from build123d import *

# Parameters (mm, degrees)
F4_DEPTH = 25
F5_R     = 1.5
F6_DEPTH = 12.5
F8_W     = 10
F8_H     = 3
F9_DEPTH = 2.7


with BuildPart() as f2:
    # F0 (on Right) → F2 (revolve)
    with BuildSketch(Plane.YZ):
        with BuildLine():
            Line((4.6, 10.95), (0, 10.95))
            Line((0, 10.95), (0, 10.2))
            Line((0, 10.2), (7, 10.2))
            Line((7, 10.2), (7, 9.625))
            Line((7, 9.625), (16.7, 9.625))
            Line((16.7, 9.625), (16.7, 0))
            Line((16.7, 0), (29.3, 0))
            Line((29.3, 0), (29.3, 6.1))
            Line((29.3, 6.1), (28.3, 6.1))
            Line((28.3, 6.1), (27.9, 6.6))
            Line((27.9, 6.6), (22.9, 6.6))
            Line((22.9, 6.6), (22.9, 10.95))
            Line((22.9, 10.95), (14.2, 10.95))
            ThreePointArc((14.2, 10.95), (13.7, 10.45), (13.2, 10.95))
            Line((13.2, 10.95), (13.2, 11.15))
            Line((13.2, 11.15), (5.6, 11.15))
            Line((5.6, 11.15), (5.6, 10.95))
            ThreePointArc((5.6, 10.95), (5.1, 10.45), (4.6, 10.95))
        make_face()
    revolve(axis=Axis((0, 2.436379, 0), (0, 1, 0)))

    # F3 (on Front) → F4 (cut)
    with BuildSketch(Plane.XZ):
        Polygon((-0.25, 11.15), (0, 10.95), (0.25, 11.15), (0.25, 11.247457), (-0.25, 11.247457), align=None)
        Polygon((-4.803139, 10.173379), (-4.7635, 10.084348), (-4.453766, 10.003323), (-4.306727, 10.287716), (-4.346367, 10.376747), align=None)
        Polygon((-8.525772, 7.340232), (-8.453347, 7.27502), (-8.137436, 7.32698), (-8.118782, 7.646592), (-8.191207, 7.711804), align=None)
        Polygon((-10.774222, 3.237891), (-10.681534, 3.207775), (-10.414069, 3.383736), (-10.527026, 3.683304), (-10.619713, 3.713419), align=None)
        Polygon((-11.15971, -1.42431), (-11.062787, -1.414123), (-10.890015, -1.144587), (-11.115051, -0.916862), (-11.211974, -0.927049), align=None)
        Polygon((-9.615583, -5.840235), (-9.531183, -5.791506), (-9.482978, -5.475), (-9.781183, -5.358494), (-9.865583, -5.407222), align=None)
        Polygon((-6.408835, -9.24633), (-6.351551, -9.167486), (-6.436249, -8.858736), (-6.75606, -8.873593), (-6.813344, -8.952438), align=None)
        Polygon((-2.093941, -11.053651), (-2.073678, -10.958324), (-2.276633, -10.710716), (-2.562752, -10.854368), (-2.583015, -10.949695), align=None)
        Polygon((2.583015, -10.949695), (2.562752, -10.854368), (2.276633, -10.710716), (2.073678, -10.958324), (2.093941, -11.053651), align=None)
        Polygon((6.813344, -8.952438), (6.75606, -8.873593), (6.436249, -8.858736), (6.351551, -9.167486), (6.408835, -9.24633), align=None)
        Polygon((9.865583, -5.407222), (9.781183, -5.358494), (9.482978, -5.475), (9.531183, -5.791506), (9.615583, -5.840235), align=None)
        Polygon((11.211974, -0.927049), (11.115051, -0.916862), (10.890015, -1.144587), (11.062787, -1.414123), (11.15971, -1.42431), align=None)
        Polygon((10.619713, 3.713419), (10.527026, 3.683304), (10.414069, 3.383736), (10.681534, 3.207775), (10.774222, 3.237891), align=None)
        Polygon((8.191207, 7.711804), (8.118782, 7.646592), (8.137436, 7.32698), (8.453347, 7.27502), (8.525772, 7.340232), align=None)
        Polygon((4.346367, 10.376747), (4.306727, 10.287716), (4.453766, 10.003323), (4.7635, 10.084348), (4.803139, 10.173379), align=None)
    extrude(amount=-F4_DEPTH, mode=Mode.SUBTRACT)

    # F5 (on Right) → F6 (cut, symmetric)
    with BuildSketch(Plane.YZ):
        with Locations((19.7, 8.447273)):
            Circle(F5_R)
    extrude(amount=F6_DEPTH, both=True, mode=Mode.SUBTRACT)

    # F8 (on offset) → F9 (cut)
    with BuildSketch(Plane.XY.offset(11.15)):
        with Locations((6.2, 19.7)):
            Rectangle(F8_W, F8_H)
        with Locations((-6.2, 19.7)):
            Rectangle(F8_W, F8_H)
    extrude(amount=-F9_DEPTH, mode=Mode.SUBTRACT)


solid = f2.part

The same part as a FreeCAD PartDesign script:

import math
import FreeCAD as App
import Part
import Sketcher

V = App.Vector
Q = App.Units.Quantity


def add_polygon(sketch, points):
    """Adds a closed chain of lines whose ends are joined by coincident constraints."""
    first, n = sketch.GeometryCount, len(points)
    for a, b in zip(points, points[1:] + points[:1]):
        sketch.addGeometry(Part.LineSegment(App.Vector(*a, 0), App.Vector(*b, 0)), False)
    for i in range(n):
        sketch.addConstraint(Sketcher.Constraint("Coincident", first + i, 2, first + (i + 1) % n, 1))

doc = App.newDocument("Part")
body = doc.addObject("PartDesign::Body", "Body")

sketch1 = body.newObject("Sketcher::SketchObject", "Sketch")
sketch1.AttachmentSupport = (doc.getObject("YZ_Plane"), [""])
sketch1.MapMode = "FlatFace"
sketch1.addGeometry([
    Part.LineSegment(V(4.6, 10.95, 0), V(0, 10.95, 0)),
    Part.LineSegment(V(0, 10.95, 0), V(0, 10.2, 0)),
    Part.LineSegment(V(0, 10.2, 0), V(7, 10.2, 0)),
    Part.LineSegment(V(7, 10.2, 0), V(7, 9.62, 0)),
    Part.LineSegment(V(7, 9.62, 0), V(16.7, 9.62, 0)),
    Part.LineSegment(V(16.7, 9.62, 0), V(16.7, 0, 0)),
    Part.LineSegment(V(16.7, 0, 0), V(29.3, 0, 0)),
    Part.LineSegment(V(29.3, 0, 0), V(29.3, 6.1, 0)),
    Part.LineSegment(V(29.3, 6.1, 0), V(28.3, 6.1, 0)),
    Part.LineSegment(V(28.3, 6.1, 0), V(27.9, 6.6, 0)),
    Part.LineSegment(V(27.9, 6.6, 0), V(22.9, 6.6, 0)),
    Part.LineSegment(V(22.9, 6.6, 0), V(22.9, 10.95, 0)),
    Part.LineSegment(V(22.9, 10.95, 0), V(14.2, 10.95, 0)),
    Part.ArcOfCircle(Part.Circle(V(13.7, 10.95, 0), V(0, 0, 1), 0.5), math.radians(180), math.radians(360)),
    Part.LineSegment(V(13.2, 10.95, 0), V(13.2, 11.15, 0)),
    Part.LineSegment(V(13.2, 11.15, 0), V(5.6, 11.15, 0)),
    Part.LineSegment(V(5.6, 11.15, 0), V(5.6, 10.95, 0)),
    Part.ArcOfCircle(Part.Circle(V(5.1, 10.95, 0), V(0, 0, 1), 0.5), math.radians(180), math.radians(360)),
], False)
sketch1.addConstraint([
    Sketcher.Constraint("Coincident", 0, 2, 1, 1),
    Sketcher.Constraint("Coincident", 1, 2, 2, 1),
    Sketcher.Constraint("Coincident", 2, 2, 3, 1),
    Sketcher.Constraint("Coincident", 3, 2, 4, 1),
    Sketcher.Constraint("Coincident", 4, 2, 5, 1),
    Sketcher.Constraint("Coincident", 5, 2, 6, 1),
    Sketcher.Constraint("Coincident", 6, 2, 7, 1),
    Sketcher.Constraint("Coincident", 7, 2, 8, 1),
    Sketcher.Constraint("Coincident", 8, 2, 9, 1),
    Sketcher.Constraint("Coincident", 9, 2, 10, 1),
    Sketcher.Constraint("Coincident", 10, 2, 11, 1),
    Sketcher.Constraint("Coincident", 11, 2, 12, 1),
    Sketcher.Constraint("Coincident", 12, 2, 13, 2),
    Sketcher.Constraint("Tangent", 13, 1, 14, 1),
    Sketcher.Constraint("Coincident", 14, 2, 15, 1),
    Sketcher.Constraint("Coincident", 15, 2, 16, 1),
    Sketcher.Constraint("Tangent", 16, 2, 17, 2),
    Sketcher.Constraint("Coincident", 17, 1, 0, 1),
    Sketcher.Constraint("Horizontal", 0),
    Sketcher.Constraint("Vertical", 1),
    Sketcher.Constraint("Horizontal", 2),
    Sketcher.Constraint("Vertical", 3),
    Sketcher.Constraint("Horizontal", 4),
    Sketcher.Constraint("Vertical", 5),
    Sketcher.Constraint("Horizontal", 6),
    Sketcher.Constraint("Vertical", 7),
    Sketcher.Constraint("Horizontal", 8),
    Sketcher.Constraint("Horizontal", 10),
    Sketcher.Constraint("Vertical", 11),
    Sketcher.Constraint("Horizontal", 12),
    Sketcher.Constraint("Vertical", 14),
    Sketcher.Constraint("Horizontal", 15),
    Sketcher.Constraint("Vertical", 16),
    Sketcher.Constraint("Equal", 13, 17),
    Sketcher.Constraint("PointOnObject", 0, 2, -2),
    Sketcher.Constraint("PointOnObject", 5, 2, -1),
    Sketcher.Constraint("Horizontal", 13, 3, 17, 3),
    Sketcher.Constraint("Horizontal", 17, 3, 0, 2),
    Sketcher.Constraint("Horizontal", 0, 2, 11, 2),
    Sketcher.Constraint("Radius", 13, Q("0.5 mm")),
    Sketcher.Constraint("DistanceX", 2, 1, 2, 2, Q("7 mm")),
    Sketcher.Constraint("DistanceX", 8, 2, 8, 1, Q("1 mm")),
    Sketcher.Constraint("DistanceX", 10, 2, 10, 1, Q("5 mm")),
    Sketcher.Constraint("DistanceX", 0, 2, 0, 1, Q("4.6 mm")),
    Sketcher.Constraint("DistanceX", 4, 1, 4, 2, Q("9.7 mm")),
    Sketcher.Constraint("DistanceX", 6, 1, 6, 2, Q("12.6 mm")),
    Sketcher.Constraint("DistanceX", 12, 2, 12, 1, Q("8.7 mm")),
    Sketcher.Constraint("DistanceX", 15, 2, 15, 1, Q("7.6 mm")),
    Sketcher.Constraint("DistanceY", 7, 1, 7, 2, Q("6.1 mm")),
    Sketcher.Constraint("DistanceY", 14, 1, 14, 2, Q("0.2 mm")),
    Sketcher.Constraint("DistanceY", 1, 2, 1, 1, Q("0.75 mm")),
    Sketcher.Constraint("DistanceY", 11, 1, 11, 2, Q("4.35 mm")),
    Sketcher.Constraint("DistanceY", -1, 1, 1, 2, Q("10.2 mm")),
    Sketcher.Constraint("DistanceY", 3, 2, 3, 1, Q("0.575 mm")),
])
revolution = body.newObject("PartDesign::Revolution", "Revolution")
revolution.Profile = sketch1
revolution.ReferenceAxis = (sketch1, ["H_Axis"])
revolution.Angle = 360

sketch2 = body.newObject("Sketcher::SketchObject", "Sketch001")
sketch2.AttachmentSupport = (doc.getObject("XZ_Plane"), [""])
sketch2.MapMode = "FlatFace"
add_polygon(sketch2, [(-0.25, 11.15), (0, 10.95), (0.25, 11.15), (0.25, 11.25), (-0.25, 11.25)])
add_polygon(sketch2, [(-4.8, 10.17), (-4.76, 10.08), (-4.45, 10), (-4.31, 10.29), (-4.35, 10.38)])
add_polygon(sketch2, [(-8.53, 7.34), (-8.45, 7.28), (-8.14, 7.33), (-8.12, 7.65), (-8.19, 7.71)])
add_polygon(sketch2, [(-10.77, 3.24), (-10.68, 3.21), (-10.41, 3.38), (-10.53, 3.68), (-10.62, 3.71)])
add_polygon(sketch2, [(-11.16, -1.42), (-11.06, -1.41), (-10.89, -1.14), (-11.12, -0.92), (-11.21, -0.93)])
add_polygon(sketch2, [(-9.62, -5.84), (-9.53, -5.79), (-9.48, -5.47), (-9.78, -5.36), (-9.87, -5.41)])
add_polygon(sketch2, [(-6.41, -9.25), (-6.35, -9.17), (-6.44, -8.86), (-6.76, -8.87), (-6.81, -8.95)])
add_polygon(sketch2, [(-2.09, -11.05), (-2.07, -10.96), (-2.28, -10.71), (-2.56, -10.85), (-2.58, -10.95)])
add_polygon(sketch2, [(2.58, -10.95), (2.56, -10.85), (2.28, -10.71), (2.07, -10.96), (2.09, -11.05)])
add_polygon(sketch2, [(6.81, -8.95), (6.76, -8.87), (6.44, -8.86), (6.35, -9.17), (6.41, -9.25)])
add_polygon(sketch2, [(9.87, -5.41), (9.78, -5.36), (9.48, -5.47), (9.53, -5.79), (9.62, -5.84)])
add_polygon(sketch2, [(11.21, -0.93), (11.12, -0.92), (10.89, -1.14), (11.06, -1.41), (11.16, -1.42)])
add_polygon(sketch2, [(10.62, 3.71), (10.53, 3.68), (10.41, 3.38), (10.68, 3.21), (10.77, 3.24)])
add_polygon(sketch2, [(8.19, 7.71), (8.12, 7.65), (8.14, 7.33), (8.45, 7.28), (8.53, 7.34)])
add_polygon(sketch2, [(4.35, 10.38), (4.31, 10.29), (4.45, 10), (4.76, 10.08), (4.8, 10.17)])
sketch2.addConstraint([
    Sketcher.Constraint("Vertical", 2),
    Sketcher.Constraint("Horizontal", 3),
    Sketcher.Constraint("Vertical", 4),
    Sketcher.Constraint("Symmetric", 1, 2, 4, 2, -2),
    Sketcher.Constraint("Symmetric", 37, 2, 40, 2, -2),
    Sketcher.Constraint("Symmetric", 36, 2, 41, 2, -2),
    Sketcher.Constraint("Symmetric", 35, 2, 42, 2, -2),
    Sketcher.Constraint("Symmetric", 39, 2, 43, 2, -2),
    Sketcher.Constraint("Symmetric", 38, 2, 44, 2, -2),
    Sketcher.Constraint("Symmetric", 32, 2, 45, 2, -2),
    Sketcher.Constraint("Symmetric", 31, 2, 46, 2, -2),
    Sketcher.Constraint("Symmetric", 30, 2, 47, 2, -2),
    Sketcher.Constraint("Symmetric", 34, 2, 48, 2, -2),
    Sketcher.Constraint("Symmetric", 33, 2, 49, 2, -2),
    Sketcher.Constraint("Symmetric", 27, 2, 50, 2, -2),
    Sketcher.Constraint("Symmetric", 26, 2, 51, 2, -2),
    Sketcher.Constraint("Symmetric", 25, 2, 52, 2, -2),
    Sketcher.Constraint("Symmetric", 29, 2, 53, 2, -2),
    Sketcher.Constraint("Symmetric", 28, 2, 54, 2, -2),
    Sketcher.Constraint("Symmetric", 22, 2, 55, 2, -2),
    Sketcher.Constraint("Symmetric", 21, 2, 56, 2, -2),
    Sketcher.Constraint("Symmetric", 20, 2, 57, 2, -2),
    Sketcher.Constraint("Symmetric", 24, 2, 58, 2, -2),
    Sketcher.Constraint("Symmetric", 23, 2, 59, 2, -2),
    Sketcher.Constraint("Symmetric", 17, 2, 60, 2, -2),
    Sketcher.Constraint("Symmetric", 16, 2, 61, 2, -2),
    Sketcher.Constraint("Symmetric", 15, 2, 62, 2, -2),
    Sketcher.Constraint("Symmetric", 19, 2, 63, 2, -2),
    Sketcher.Constraint("Symmetric", 18, 2, 64, 2, -2),
    Sketcher.Constraint("Symmetric", 12, 2, 65, 2, -2),
    Sketcher.Constraint("Symmetric", 11, 2, 66, 2, -2),
    Sketcher.Constraint("Symmetric", 10, 2, 67, 2, -2),
    Sketcher.Constraint("Symmetric", 14, 2, 68, 2, -2),
    Sketcher.Constraint("Symmetric", 13, 2, 69, 2, -2),
    Sketcher.Constraint("Symmetric", 7, 2, 70, 2, -2),
    Sketcher.Constraint("Symmetric", 6, 2, 71, 2, -2),
    Sketcher.Constraint("Symmetric", 5, 2, 72, 2, -2),
    Sketcher.Constraint("Symmetric", 9, 2, 73, 2, -2),
    Sketcher.Constraint("Symmetric", 8, 2, 74, 2, -2),
    Sketcher.Constraint("PointOnObject", 0, 2, -2),
    Sketcher.Constraint("Perpendicular", 5, 9),
    Sketcher.Constraint("Parallel", 10, 13),
    Sketcher.Constraint("Perpendicular", 13, 14),
    Sketcher.Constraint("Parallel", 20, 23),
    Sketcher.Constraint("Perpendicular", 23, 24),
    Sketcher.Constraint("Perpendicular", 33, 34),
    Sketcher.Constraint("Parallel", 35, 38),
    Sketcher.Constraint("Equal", 1, 6),
    Sketcher.Constraint("Equal", 6, 7),
    Sketcher.Constraint("Equal", 5, 8),
    Sketcher.Constraint("Equal", 8, 10),
    Sketcher.Constraint("Equal", 7, 11),
    Sketcher.Constraint("Equal", 11, 12),
    Sketcher.Constraint("Equal", 10, 13),
    Sketcher.Constraint("Equal", 9, 14),
    Sketcher.Constraint("Equal", 13, 15),
    Sketcher.Constraint("Equal", 12, 16),
    Sketcher.Constraint("Equal", 16, 17),
    Sketcher.Constraint("Equal", 15, 18),
    Sketcher.Constraint("Equal", 14, 19),
    Sketcher.Constraint("Equal", 18, 20),
    Sketcher.Constraint("Equal", 17, 21),
    Sketcher.Constraint("Equal", 21, 22),
    Sketcher.Constraint("Equal", 20, 23),
    Sketcher.Constraint("Equal", 19, 24),
    Sketcher.Constraint("Equal", 23, 25),
    Sketcher.Constraint("Equal", 22, 26),
    Sketcher.Constraint("Equal", 26, 27),
    Sketcher.Constraint("Equal", 25, 28),
    Sketcher.Constraint("Equal", 24, 29),
    Sketcher.Constraint("Equal", 28, 30),
    Sketcher.Constraint("Equal", 27, 31),
    Sketcher.Constraint("Equal", 31, 32),
    Sketcher.Constraint("Equal", 30, 33),
    Sketcher.Constraint("Equal", 29, 34),
    Sketcher.Constraint("Equal", 33, 35),
    Sketcher.Constraint("Equal", 32, 36),
    Sketcher.Constraint("Equal", 36, 37),
    Sketcher.Constraint("Equal", 35, 38),
    Sketcher.Constraint("Equal", 34, 39),
    Sketcher.Constraint("Angle", 9, Q("-156 deg")),
    Sketcher.Constraint("Angle", 14, Q("-132.000006 deg")),
    Sketcher.Constraint("Angle", 20, Q("5.99999 deg")),
    Sketcher.Constraint("Angle", 29, Q("-60.000017 deg")),
    Sketcher.Constraint("Angle", 39, Q("-12.000013 deg")),
    Sketcher.Constraint("DistanceX", 3, 2, 3, 1, Q("0.5 mm")),
    Sketcher.Constraint("Distance", 9, Q("0.499999 mm")),
    Sketcher.Constraint("DistanceY", -1, 1, 0, 2, Q("10.95 mm")),
    Sketcher.Constraint("DistanceY", -1, 1, 1, 2, Q("11.15 mm")),
    Sketcher.Constraint("DistanceY", 26, 2, -1, 1, Q("5.475 mm")),
    Sketcher.Constraint("DistanceX", 5, 2, -1, 1, Q("4.7635 mm")),
    Sketcher.Constraint("DistanceY", 2, 1, 2, 2, Q("0.097457 mm")),
    Sketcher.Constraint("DistanceX", 9, 2, -1, 1, Q("4.803139 mm")),
    Sketcher.Constraint("DistanceY", -1, 1, 9, 2, Q("10.173379 mm")),
    Sketcher.Constraint("DistanceY", -1, 1, 10, 2, Q("7.27502 mm")),
    Sketcher.Constraint("DistanceX", 16, 2, -1, 1, Q("10.414069 mm")),
    Sketcher.Constraint("DistanceY", -1, 1, 18, 2, Q("3.713419 mm")),
    Sketcher.Constraint("DistanceY", -1, 1, 19, 2, Q("3.237891 mm")),
    Sketcher.Constraint("DistanceX", 22, 2, -1, 1, Q("11.115051 mm")),
    Sketcher.Constraint("DistanceY", 22, 2, -1, 1, Q("0.916862 mm")),
    Sketcher.Constraint("DistanceX", 30, 2, -1, 1, Q("6.351551 mm")),
    Sketcher.Constraint("DistanceX", 31, 2, -1, 1, Q("6.436249 mm")),
    Sketcher.Constraint("DistanceX", 32, 2, -1, 1, Q("6.75606 mm")),
    Sketcher.Constraint("DistanceY", 33, 2, -1, 1, Q("8.952438 mm")),
    Sketcher.Constraint("DistanceX", 35, 2, -1, 1, Q("2.073678 mm")),
    Sketcher.Constraint("DistanceX", 39, 2, -1, 1, Q("2.093941 mm")),
    Sketcher.Constraint("DistanceY", 39, 2, -1, 1, Q("11.053651 mm")),
    Sketcher.Constraint("DistanceX", 6, 2, -1, 1, Q("4.453766 mm")),
    Sketcher.Constraint("DistanceX", 10, 2, -1, 1, Q("8.453347 mm")),
    Sketcher.Constraint("DistanceX", 15, 2, -1, 1, Q("10.681534 mm")),
    Sketcher.Constraint("DistanceY", -1, 1, 15, 2, Q("3.207775 mm")),
    Sketcher.Constraint("DistanceX", 25, 2, -1, 1, Q("9.531183 mm")),
    Sketcher.Constraint("DistanceY", 25, 2, -1, 1, Q("5.791506 mm")),
    Sketcher.Constraint("DistanceX", 28, 2, -1, 1, Q("9.865583 mm")),
])
pocket1 = body.newObject("PartDesign::Pocket", "Pocket")
pocket1.Profile = sketch2
pocket1.Length = 25

sketch3 = body.newObject("Sketcher::SketchObject", "Sketch002")
sketch3.AttachmentSupport = (doc.getObject("YZ_Plane"), [""])
sketch3.MapMode = "FlatFace"
sketch3.addGeometry(Part.Circle(V(19.7, 8.4, 0), V(0, 0, 1), 1.5), False)
sketch3.addConstraint([
    Sketcher.Constraint("Diameter", 0, Q("3 mm")),
    Sketcher.Constraint("DistanceX", -1, 1, 0, 3, Q("19.7 mm")),
    Sketcher.Constraint("DistanceY", -1, 1, 0, 3, Q("8.447273 mm")),
])
pocket2 = body.newObject("PartDesign::Pocket", "Pocket001")
pocket2.Profile = sketch3
pocket2.Length = 25
pocket2.Midplane = True

sketch4 = body.newObject("Sketcher::SketchObject", "Sketch003")
sketch4.AttachmentSupport = (doc.getObject("XY_Plane"), [""])
sketch4.MapMode = "FlatFace"
sketch4.AttachmentOffset = App.Placement(V(0, 0, 11.15), App.Rotation())
add_polygon(sketch4, [(1.2, 21.2), (1.2, 18.2), (11.2, 18.2), (11.2, 21.2)])
add_polygon(sketch4, [(-11.2, 21.2), (-11.2, 18.2), (-1.2, 18.2), (-1.2, 21.2)])
sketch4.addConstraint([
    Sketcher.Constraint("Vertical", 0),
    Sketcher.Constraint("Horizontal", 1),
    Sketcher.Constraint("Vertical", 2),
    Sketcher.Constraint("Horizontal", 3),
    Sketcher.Constraint("Vertical", 4),
    Sketcher.Constraint("Horizontal", 5),
    Sketcher.Constraint("Vertical", 6),
    Sketcher.Constraint("Horizontal", 7),
    Sketcher.Constraint("Symmetric", 1, 2, 4, 2, -2),
    Sketcher.Constraint("Symmetric", 3, 2, 6, 2, -2),
    Sketcher.Constraint("DistanceX", 1, 1, 1, 2, Q("10 mm")),
    Sketcher.Constraint("DistanceY", 0, 2, 0, 1, Q("3 mm")),
    Sketcher.Constraint("DistanceX", -1, 1, 0, 2, Q("1.2 mm")),
    Sketcher.Constraint("DistanceY", -1, 1, 0, 2, Q("18.2 mm")),
])
pocket3 = body.newObject("PartDesign::Pocket", "Pocket002")
pocket3.Profile = sketch4
pocket3.Length = 2.7

doc.recompute()
